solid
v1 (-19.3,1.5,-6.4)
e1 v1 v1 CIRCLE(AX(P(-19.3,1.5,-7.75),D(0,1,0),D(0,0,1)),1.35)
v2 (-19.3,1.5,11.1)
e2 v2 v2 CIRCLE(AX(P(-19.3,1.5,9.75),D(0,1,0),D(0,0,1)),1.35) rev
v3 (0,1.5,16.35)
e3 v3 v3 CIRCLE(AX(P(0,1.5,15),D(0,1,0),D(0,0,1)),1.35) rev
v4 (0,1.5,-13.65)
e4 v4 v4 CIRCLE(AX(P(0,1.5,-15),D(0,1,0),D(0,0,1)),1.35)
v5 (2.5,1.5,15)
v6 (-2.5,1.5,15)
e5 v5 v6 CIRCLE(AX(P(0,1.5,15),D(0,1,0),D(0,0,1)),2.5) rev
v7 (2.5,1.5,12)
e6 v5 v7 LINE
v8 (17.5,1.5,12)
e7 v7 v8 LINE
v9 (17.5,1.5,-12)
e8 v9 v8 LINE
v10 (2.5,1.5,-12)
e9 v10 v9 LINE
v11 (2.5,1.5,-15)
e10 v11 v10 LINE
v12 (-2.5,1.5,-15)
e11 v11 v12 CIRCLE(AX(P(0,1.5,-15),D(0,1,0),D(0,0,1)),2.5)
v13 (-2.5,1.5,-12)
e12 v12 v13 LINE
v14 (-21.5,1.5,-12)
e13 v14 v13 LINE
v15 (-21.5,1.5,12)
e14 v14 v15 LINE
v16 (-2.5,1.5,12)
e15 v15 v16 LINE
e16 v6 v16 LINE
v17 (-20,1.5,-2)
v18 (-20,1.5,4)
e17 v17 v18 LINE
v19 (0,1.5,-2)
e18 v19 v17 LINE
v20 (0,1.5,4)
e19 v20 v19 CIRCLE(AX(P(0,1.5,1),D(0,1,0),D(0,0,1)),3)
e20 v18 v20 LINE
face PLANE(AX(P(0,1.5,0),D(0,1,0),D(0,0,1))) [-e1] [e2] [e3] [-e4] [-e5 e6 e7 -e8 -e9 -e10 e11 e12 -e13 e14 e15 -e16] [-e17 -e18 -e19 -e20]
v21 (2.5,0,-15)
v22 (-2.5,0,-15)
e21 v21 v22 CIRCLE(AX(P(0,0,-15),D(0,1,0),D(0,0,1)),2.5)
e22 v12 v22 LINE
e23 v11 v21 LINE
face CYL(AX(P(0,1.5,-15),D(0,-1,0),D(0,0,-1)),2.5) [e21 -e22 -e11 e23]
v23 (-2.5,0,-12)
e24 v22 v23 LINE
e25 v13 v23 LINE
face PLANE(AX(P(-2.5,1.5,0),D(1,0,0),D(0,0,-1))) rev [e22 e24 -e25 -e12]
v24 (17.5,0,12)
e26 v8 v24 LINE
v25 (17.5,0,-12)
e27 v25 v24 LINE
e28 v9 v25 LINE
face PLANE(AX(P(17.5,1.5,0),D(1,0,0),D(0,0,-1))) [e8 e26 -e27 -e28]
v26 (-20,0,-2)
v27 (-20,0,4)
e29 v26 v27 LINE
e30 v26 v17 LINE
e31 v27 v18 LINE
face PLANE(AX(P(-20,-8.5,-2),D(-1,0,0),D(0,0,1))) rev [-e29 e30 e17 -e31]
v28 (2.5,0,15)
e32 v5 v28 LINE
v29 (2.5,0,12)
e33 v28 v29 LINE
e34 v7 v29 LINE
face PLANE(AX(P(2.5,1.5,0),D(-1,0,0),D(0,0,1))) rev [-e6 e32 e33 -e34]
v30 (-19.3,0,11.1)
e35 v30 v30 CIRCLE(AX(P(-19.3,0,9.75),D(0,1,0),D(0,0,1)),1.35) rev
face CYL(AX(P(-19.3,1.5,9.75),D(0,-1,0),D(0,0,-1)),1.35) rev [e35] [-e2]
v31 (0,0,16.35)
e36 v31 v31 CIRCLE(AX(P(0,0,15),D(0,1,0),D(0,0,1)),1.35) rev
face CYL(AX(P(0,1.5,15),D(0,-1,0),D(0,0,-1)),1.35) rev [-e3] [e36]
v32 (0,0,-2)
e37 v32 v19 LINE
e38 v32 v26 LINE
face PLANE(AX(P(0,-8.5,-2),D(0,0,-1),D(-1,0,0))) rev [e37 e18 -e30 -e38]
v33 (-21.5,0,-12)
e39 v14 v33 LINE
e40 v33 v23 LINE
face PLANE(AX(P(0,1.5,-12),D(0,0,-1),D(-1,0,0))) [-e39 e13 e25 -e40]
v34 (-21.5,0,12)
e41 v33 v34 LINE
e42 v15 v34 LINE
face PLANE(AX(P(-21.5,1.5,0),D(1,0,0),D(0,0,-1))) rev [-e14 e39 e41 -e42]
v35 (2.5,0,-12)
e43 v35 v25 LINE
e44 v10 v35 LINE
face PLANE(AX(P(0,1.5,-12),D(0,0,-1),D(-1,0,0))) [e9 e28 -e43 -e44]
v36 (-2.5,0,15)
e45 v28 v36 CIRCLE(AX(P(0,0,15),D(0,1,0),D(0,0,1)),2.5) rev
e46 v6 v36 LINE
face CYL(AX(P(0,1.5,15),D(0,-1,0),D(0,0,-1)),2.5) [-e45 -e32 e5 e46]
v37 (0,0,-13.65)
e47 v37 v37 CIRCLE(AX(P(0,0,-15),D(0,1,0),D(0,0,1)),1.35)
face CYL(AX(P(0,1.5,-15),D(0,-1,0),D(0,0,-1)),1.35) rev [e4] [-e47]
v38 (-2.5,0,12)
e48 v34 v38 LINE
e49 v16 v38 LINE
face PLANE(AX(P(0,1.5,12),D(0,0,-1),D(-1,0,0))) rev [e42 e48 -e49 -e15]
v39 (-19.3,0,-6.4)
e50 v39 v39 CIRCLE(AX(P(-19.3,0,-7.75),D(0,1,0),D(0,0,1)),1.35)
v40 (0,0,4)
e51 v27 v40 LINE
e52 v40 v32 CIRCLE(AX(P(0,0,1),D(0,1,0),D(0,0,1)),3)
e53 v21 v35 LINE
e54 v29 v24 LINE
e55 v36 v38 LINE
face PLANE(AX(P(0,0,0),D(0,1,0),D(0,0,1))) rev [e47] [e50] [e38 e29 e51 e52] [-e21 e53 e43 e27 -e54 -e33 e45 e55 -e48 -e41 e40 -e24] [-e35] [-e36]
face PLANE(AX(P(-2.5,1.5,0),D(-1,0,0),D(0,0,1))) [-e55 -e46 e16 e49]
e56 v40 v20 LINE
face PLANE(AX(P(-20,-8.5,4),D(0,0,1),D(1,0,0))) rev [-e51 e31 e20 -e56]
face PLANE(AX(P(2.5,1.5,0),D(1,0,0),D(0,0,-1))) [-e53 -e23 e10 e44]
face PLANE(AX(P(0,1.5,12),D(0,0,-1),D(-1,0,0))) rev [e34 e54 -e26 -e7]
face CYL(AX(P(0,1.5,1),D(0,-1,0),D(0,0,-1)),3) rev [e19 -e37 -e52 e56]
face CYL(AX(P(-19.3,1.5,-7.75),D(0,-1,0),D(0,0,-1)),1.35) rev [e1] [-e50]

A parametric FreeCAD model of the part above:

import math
import FreeCAD as App
import Part
import Sketcher

doc = App.newDocument("Part")
body = doc.addObject("PartDesign::Body", "Body")

# Sketch on XZ plane
sketch1 = body.newObject("Sketcher::SketchObject", "Sketch")
sketch1.AttachmentSupport = (doc.getObject("XZ_Plane"), [""])
sketch1.MapMode = "FlatFace"
sketch1.addGeometry([
    Part.LineSegment(App.Vector(-2.5, 12, 0), App.Vector(-2.5, 15, 0)),  # 0
    Part.ArcOfCircle(Part.Circle(App.Vector(0, 15, 0), App.Vector(0, 0, 1), 2.5), math.radians(0), math.radians(180)),  # 1
    Part.LineSegment(App.Vector(2.5, 15, 0), App.Vector(2.5, 12, 0)),  # 2
    Part.LineSegment(App.Vector(2.5, 12, 0), App.Vector(17.5, 12, 0)),  # 3
    Part.LineSegment(App.Vector(17.5, 12, 0), App.Vector(17.5, -12, 0)),  # 4
    Part.LineSegment(App.Vector(17.5, -12, 0), App.Vector(2.5, -12, 0)),  # 5
    Part.LineSegment(App.Vector(2.5, -12, 0), App.Vector(2.5, -15, 0)),  # 6
    Part.ArcOfCircle(Part.Circle(App.Vector(0, -15, 0), App.Vector(0, 0, 1), 2.5), math.radians(180), math.radians(360)),  # 7
    Part.LineSegment(App.Vector(-2.5, -15, 0), App.Vector(-2.5, -12, 0)),  # 8
    Part.LineSegment(App.Vector(-2.5, -12, 0), App.Vector(-21.5, -12, 0)),  # 9
    Part.LineSegment(App.Vector(-21.5, -12, 0), App.Vector(-21.5, 12, 0)),  # 10
    Part.LineSegment(App.Vector(-21.5, 12, 0), App.Vector(-2.5, 12, 0)),  # 11
    Part.Circle(App.Vector(-19.3, 9.75, 0), App.Vector(0, 0, 1), 1.35),  # 12
    Part.Circle(App.Vector(0, 15, 0), App.Vector(0, 0, 1), 1.35),  # 13
    Part.Circle(App.Vector(0, 1, 0), App.Vector(0, 0, 1), 3),  # 14
    Part.Circle(App.Vector(-19.3, -7.75, 0), App.Vector(0, 0, 1), 1.35),  # 15
    Part.Circle(App.Vector(0, -15, 0), App.Vector(0, 0, 1), 1.35),  # 16
], False)
sketch1.addConstraint([
    Sketcher.Constraint("Tangent", 0, 2, 1, 2),
    Sketcher.Constraint("Tangent", 1, 1, 2, 1),
    Sketcher.Constraint("Coincident", 2, 2, 3, 1),
    Sketcher.Constraint("Coincident", 3, 2, 4, 1),
    Sketcher.Constraint("Coincident", 4, 2, 5, 1),
    Sketcher.Constraint("Coincident", 5, 2, 6, 1),
    Sketcher.Constraint("Tangent", 6, 2, 7, 2),
    Sketcher.Constraint("Tangent", 7, 1, 8, 1),
    Sketcher.Constraint("Coincident", 8, 2, 9, 1),
    Sketcher.Constraint("Coincident", 9, 2, 10, 1),
    Sketcher.Constraint("Coincident", 10, 2, 11, 1),
    Sketcher.Constraint("Coincident", 11, 2, 0, 1),
    Sketcher.Constraint("Vertical", 0),
    Sketcher.Constraint("Vertical", 2),
    Sketcher.Constraint("Horizontal", 3),
    Sketcher.Constraint("Vertical", 4),
    Sketcher.Constraint("Horizontal", 5),
    Sketcher.Constraint("Vertical", 6),
    Sketcher.Constraint("Vertical", 8),
    Sketcher.Constraint("Horizontal", 9),
    Sketcher.Constraint("Vertical", 10),
    Sketcher.Constraint("Horizontal", 11),
    Sketcher.Constraint("Coincident", 13, 3, 1, 3),
    Sketcher.Constraint("Coincident", 16, 3, 7, 3),
    Sketcher.Constraint("Equal", 1, 7),
    Sketcher.Constraint("Equal", 12, 13),
    Sketcher.Constraint("Equal", 13, 15),
    Sketcher.Constraint("Equal", 15, 16),
    Sketcher.Constraint("Symmetric", 1, 3, 7, 3, -1, 1),
    Sketcher.Constraint("Symmetric", 5, 2, 8, 2, -2),
    Sketcher.Constraint("PointOnObject", 14, 3, -2),
    Sketcher.Constraint("Horizontal", 3, 2, 10, 2),
    Sketcher.Constraint("Vertical", 12, 3, 15, 3),
    Sketcher.Constraint("Equal", 2, 6),
    Sketcher.Constraint("Diameter", 14, 6.0),
    Sketcher.Constraint("Diameter", 12, 2.7),
    Sketcher.Constraint("Radius", 1, 2.5),
    Sketcher.Constraint("DistanceX", 3, 1, 3, 2, 15.0),
    Sketcher.Constraint("DistanceX", 9, 2, 9, 1, 19.0),
    Sketcher.Constraint("DistanceY", 0, 1, 0, 2, 3.0),
    Sketcher.Constraint("DistanceY", 4, 2, 4, 1, 24.0),
    Sketcher.Constraint("DistanceY", -1, 1, 14, 3, 1.0),
    Sketcher.Constraint("DistanceX", 12, 3, -1, 1, 19.3),
    Sketcher.Constraint("DistanceY", 15, 3, 12, 3, 17.5),
    Sketcher.Constraint("DistanceY", -1, 1, 12, 3, 9.75),
])
pad1 = body.newObject("PartDesign::Pad", "Pad")
pad1.Profile = sketch1
pad1.Length = 1.5
pad1.Reversed = True

# Sketch on XZ plane
sketch2 = body.newObject("Sketcher::SketchObject", "Sketch001")
sketch2.AttachmentSupport = (doc.getObject("XZ_Plane"), [""])
sketch2.MapMode = "FlatFace"
sketch2.AttachmentOffset = App.Placement(App.Vector(0, 0, -1.5), App.Rotation())
sketch2.addGeometry([
    Part.LineSegment(App.Vector(0, -2, 0), App.Vector(-20, -2, 0)),
    Part.LineSegment(App.Vector(-20, -2, 0), App.Vector(-20, 4, 0)),
    Part.LineSegment(App.Vector(-20, 4, 0), App.Vector(0, 4, 0)),
    Part.ArcOfCircle(Part.Circle(App.Vector(0, 1, 0), App.Vector(0, 0, 1), 3), math.radians(-90), math.radians(90)),
], False)
sketch2.addConstraint([
    Sketcher.Constraint("Coincident", 0, 2, 1, 1),
    Sketcher.Constraint("Coincident", 1, 2, 2, 1),
    Sketcher.Constraint("Tangent", 2, 2, 3, 2),
    Sketcher.Constraint("Tangent", 3, 1, 0, 1),
    Sketcher.Constraint("Horizontal", 0),
    Sketcher.Constraint("Vertical", 1),
    Sketcher.Constraint("Horizontal", 2),
    Sketcher.Constraint("PointOnObject", 3, 3, -2),
    Sketcher.Constraint("Radius", 3, 3.0),
    Sketcher.Constraint("DistanceX", 0, 2, 0, 1, 20.0),
    Sketcher.Constraint("DistanceY", -1, 1, 3, 3, 1.0),
])
pocket1 = body.newObject("PartDesign::Pocket", "Pocket")
pocket1.Profile = sketch2
pocket1.Length = 10
pocket1.Reversed = True

doc.recompute()
